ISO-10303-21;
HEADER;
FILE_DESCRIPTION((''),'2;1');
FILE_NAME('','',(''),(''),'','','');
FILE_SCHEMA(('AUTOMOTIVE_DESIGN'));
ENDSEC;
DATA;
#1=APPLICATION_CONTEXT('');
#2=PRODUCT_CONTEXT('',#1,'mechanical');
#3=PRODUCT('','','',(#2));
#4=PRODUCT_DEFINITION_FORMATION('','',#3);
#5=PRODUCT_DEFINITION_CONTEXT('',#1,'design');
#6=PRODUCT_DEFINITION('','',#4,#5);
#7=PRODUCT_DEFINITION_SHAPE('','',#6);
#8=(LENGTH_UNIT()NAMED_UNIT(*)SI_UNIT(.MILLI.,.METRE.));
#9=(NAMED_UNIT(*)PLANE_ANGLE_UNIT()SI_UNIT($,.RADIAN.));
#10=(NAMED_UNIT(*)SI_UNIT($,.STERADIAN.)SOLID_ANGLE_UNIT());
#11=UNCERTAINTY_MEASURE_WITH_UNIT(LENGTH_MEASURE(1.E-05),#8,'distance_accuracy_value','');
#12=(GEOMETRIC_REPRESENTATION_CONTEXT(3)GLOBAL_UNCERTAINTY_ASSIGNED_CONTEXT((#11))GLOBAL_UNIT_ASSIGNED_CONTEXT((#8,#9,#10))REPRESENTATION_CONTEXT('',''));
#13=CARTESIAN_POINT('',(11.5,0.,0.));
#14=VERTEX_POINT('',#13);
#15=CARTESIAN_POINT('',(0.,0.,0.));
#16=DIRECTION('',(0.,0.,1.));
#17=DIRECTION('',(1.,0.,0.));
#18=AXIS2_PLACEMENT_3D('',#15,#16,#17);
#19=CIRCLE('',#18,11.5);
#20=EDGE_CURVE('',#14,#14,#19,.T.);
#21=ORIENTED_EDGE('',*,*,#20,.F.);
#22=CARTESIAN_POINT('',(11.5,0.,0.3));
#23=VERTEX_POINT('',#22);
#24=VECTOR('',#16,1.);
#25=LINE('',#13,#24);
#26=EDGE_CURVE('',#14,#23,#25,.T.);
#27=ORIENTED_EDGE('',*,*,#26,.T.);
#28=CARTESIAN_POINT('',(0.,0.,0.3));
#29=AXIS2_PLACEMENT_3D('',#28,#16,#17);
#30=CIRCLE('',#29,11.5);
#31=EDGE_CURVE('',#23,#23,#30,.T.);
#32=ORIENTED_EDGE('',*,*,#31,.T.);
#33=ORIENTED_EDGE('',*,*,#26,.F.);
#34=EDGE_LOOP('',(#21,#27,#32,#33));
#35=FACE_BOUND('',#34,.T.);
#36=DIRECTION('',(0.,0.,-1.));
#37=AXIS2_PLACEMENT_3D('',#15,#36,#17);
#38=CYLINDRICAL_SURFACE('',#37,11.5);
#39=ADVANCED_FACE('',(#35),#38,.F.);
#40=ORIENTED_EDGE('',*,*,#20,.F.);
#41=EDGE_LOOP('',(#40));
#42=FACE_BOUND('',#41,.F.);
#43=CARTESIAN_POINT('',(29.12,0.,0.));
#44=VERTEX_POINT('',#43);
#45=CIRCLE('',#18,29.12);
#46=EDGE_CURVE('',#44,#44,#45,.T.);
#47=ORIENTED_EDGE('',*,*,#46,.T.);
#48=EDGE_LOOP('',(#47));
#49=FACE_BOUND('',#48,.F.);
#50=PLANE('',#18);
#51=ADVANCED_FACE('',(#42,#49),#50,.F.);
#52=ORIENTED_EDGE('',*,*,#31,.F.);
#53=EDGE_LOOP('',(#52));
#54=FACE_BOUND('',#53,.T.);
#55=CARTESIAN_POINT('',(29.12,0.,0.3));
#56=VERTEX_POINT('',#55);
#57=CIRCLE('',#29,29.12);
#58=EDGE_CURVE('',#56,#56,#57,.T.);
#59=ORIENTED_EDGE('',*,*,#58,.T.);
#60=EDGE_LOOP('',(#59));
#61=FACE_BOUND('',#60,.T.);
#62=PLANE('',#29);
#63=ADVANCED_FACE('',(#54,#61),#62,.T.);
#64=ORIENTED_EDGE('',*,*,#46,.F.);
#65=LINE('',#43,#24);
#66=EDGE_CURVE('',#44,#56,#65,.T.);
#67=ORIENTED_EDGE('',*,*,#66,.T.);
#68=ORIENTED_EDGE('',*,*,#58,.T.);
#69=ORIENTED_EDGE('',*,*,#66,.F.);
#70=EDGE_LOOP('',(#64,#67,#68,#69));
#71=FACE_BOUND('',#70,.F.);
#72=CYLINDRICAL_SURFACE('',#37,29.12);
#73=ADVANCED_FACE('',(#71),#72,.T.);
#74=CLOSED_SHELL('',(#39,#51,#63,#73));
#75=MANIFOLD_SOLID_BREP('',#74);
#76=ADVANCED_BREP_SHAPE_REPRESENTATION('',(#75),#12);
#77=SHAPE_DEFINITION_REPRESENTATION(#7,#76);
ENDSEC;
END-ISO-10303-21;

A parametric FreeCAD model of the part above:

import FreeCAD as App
import Part
import Sketcher
Q = App.Units.Quantity

doc = App.newDocument("Part")
params = doc.addObject("Spreadsheet::Sheet", "Params")
for row, (alias, value) in enumerate([
    ("sketch1_diameter", "23 mm"),
    ("sketch1_diameter2", "58.24 mm"),
    ("pad1_length", "0.3 mm"),
], start=1):
    params.set(f"A{row}", alias)
    params.set(f"B{row}", "=" + value)
    params.setAlias(f"B{row}", alias)

body = doc.addObject("PartDesign::Body", "Body")

sketch1 = body.newObject("Sketcher::SketchObject", "Sketch")
sketch1.AttachmentSupport = (doc.getObject("XY_Plane"), [""])
sketch1.MapMode = "FlatFace"
sketch1.addGeometry([
    Part.Circle(App.Vector(0, 0, 0), App.Vector(0, 0, 1), 29.12),
    Part.Circle(App.Vector(0, 0, 0), App.Vector(0, 0, 1), 11.5),
], False)
sketch1.addConstraint([
    Sketcher.Constraint("Coincident", 0, 3, -1, 1),
    Sketcher.Constraint("Coincident", 1, 3, -1, 1),
    Sketcher.Constraint("Diameter", 1, Q("23 mm")),
    Sketcher.Constraint("Diameter", 0, Q("58.24 mm")),
])
sketch1.setExpression("Constraints[2]", "Params.sketch1_diameter")
sketch1.setExpression("Constraints[3]", "Params.sketch1_diameter2")
pad1 = body.newObject("PartDesign::Pad", "Pad")
pad1.Profile = sketch1
pad1.setExpression("Length", "Params.pad1_length")

doc.recompute()
